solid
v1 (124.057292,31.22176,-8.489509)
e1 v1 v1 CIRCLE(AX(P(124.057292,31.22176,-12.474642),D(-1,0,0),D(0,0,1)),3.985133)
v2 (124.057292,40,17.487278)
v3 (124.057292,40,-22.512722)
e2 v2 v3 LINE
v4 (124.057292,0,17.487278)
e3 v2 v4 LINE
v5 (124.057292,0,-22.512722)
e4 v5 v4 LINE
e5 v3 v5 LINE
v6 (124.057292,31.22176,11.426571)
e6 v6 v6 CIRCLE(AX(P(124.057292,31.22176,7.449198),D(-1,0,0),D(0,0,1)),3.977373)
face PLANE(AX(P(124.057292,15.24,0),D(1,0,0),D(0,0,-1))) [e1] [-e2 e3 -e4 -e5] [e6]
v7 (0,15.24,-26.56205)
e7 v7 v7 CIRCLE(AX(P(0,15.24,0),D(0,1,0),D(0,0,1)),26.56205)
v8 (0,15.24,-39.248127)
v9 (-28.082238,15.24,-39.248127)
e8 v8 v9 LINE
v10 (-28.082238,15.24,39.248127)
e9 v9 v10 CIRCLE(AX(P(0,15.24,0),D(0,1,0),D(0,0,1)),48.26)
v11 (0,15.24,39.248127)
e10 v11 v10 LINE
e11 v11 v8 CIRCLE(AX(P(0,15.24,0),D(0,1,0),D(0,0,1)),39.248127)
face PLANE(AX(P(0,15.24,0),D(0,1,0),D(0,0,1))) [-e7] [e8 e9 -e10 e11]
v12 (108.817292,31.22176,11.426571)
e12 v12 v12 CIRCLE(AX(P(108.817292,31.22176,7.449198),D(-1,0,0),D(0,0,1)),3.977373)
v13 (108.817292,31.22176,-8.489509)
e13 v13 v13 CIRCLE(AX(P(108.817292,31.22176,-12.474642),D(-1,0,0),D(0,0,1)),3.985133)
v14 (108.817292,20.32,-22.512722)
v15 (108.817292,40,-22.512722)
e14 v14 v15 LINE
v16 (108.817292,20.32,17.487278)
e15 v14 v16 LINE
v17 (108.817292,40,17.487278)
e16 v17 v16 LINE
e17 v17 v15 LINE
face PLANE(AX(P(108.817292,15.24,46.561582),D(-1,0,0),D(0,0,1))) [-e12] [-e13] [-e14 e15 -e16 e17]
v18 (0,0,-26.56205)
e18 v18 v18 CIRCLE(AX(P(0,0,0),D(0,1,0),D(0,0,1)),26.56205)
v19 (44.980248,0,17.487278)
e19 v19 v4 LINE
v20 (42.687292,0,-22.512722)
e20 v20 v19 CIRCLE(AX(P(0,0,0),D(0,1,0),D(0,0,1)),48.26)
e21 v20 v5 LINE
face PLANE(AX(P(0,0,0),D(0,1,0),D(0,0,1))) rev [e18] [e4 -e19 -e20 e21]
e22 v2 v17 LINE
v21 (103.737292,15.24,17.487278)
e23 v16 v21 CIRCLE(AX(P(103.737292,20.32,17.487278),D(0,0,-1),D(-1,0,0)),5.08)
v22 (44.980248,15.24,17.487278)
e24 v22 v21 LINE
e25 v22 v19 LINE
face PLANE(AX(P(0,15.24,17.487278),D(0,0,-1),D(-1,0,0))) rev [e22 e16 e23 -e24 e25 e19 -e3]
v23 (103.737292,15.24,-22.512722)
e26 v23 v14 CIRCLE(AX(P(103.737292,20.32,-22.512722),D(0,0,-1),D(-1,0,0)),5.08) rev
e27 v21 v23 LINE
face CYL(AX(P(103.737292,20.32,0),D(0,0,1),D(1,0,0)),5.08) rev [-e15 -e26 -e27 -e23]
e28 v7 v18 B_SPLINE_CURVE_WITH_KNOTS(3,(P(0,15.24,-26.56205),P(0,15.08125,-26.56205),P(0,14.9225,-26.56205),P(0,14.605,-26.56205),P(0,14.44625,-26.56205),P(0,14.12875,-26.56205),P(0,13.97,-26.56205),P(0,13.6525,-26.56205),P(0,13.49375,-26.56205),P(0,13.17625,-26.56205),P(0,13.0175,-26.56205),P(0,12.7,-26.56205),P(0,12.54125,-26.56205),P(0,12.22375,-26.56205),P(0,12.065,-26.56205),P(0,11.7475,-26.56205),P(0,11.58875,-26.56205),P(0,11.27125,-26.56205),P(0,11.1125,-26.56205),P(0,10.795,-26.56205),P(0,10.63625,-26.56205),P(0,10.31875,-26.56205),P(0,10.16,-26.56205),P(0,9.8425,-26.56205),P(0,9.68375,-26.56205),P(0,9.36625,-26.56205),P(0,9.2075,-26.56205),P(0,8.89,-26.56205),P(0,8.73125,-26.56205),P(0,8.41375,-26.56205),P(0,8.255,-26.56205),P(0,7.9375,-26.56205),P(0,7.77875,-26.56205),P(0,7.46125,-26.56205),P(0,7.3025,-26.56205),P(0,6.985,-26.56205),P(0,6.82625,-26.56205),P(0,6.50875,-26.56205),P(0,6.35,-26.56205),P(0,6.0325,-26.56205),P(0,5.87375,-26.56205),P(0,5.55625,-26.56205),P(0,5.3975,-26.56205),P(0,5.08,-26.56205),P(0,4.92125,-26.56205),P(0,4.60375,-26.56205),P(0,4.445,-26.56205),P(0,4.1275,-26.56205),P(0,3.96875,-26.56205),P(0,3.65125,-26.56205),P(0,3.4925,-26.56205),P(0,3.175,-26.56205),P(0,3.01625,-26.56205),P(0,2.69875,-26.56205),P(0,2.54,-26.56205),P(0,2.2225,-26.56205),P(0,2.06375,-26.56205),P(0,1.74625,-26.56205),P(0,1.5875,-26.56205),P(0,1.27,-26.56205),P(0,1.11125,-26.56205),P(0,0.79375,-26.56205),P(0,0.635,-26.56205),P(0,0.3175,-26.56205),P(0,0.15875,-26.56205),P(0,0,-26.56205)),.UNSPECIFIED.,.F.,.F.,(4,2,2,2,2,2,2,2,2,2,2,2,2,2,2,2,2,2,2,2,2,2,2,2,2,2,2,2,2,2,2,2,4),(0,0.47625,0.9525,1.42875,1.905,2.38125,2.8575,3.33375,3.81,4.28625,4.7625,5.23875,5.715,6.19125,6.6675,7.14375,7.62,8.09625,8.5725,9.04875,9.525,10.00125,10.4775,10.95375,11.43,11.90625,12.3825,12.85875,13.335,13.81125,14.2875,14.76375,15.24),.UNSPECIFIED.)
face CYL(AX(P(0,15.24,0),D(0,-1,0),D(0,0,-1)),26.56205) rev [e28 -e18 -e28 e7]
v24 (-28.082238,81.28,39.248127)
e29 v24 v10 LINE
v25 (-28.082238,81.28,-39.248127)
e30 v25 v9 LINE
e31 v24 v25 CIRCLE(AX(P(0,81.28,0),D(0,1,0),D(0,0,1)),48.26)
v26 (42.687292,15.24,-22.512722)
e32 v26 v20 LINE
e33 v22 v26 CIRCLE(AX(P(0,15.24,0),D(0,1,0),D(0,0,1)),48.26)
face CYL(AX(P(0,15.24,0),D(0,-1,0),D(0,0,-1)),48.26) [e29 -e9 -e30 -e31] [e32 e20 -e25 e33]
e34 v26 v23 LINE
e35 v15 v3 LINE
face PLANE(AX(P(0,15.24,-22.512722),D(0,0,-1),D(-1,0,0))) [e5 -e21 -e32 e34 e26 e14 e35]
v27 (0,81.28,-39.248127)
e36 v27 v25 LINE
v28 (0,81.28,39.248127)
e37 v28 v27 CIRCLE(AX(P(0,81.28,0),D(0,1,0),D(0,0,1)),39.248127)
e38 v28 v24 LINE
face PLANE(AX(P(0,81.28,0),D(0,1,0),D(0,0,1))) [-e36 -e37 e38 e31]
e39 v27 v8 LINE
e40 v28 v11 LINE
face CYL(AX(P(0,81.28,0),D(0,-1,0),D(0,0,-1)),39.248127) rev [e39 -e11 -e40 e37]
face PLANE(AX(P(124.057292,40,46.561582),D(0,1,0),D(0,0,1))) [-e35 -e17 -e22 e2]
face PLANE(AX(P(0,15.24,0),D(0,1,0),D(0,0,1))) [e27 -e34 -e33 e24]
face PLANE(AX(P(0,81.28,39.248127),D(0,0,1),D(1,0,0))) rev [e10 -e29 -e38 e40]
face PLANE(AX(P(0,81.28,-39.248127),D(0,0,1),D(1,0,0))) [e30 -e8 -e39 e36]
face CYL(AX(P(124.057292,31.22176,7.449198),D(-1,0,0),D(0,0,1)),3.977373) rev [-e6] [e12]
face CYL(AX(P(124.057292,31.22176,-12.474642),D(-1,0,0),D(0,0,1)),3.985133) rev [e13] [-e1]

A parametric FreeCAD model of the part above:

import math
import FreeCAD as App
import Part
import Sketcher
Q = App.Units.Quantity


def edges_at(feature, points):
    """Names of the edges that pass closest to the given points."""
    edges = feature.Shape.Edges
    near = lambda p: min(range(len(edges)), key=lambda i: edges[i].distToShape(Part.Vertex(*p))[0])
    return sorted({f"Edge{near(p) + 1}" for p in points})


def add_polygon(sketch, points):
    """Adds a closed chain of lines whose ends are joined by coincident constraints."""
    first, n = sketch.GeometryCount, len(points)
    for a, b in zip(points, points[1:] + points[:1]):
        sketch.addGeometry(Part.LineSegment(App.Vector(*a, 0), App.Vector(*b, 0)), False)
    for i in range(n):
        sketch.addConstraint(Sketcher.Constraint("Coincident", first + i, 2, first + (i + 1) % n, 1))

doc = App.newDocument("Part")
body = doc.addObject("PartDesign::Body", "Body")

# Sketch on XZ plane
sketch1 = doc.addObject("Sketcher::SketchObject", "Sketch")
body.addObject(sketch1)
sketch1.AttachmentSupport = (doc.XZ_Plane, [""])
sketch1.MapMode = "FlatFace"
sketch1.addGeometry(Part.LineSegment(App.Vector(124, -23, 0), App.Vector(43, -23, 0)), False)
sketch1.addGeometry(Part.ArcOfCircle(Part.Circle(App.Vector(0, 0, 0), App.Vector(0, 0, 1), 48), math.radians(21), math.radians(332)), False)
sketch1.addGeometry(Part.LineSegment(App.Vector(45, 17, 0), App.Vector(124, 17, 0)), False)
sketch1.addGeometry(Part.LineSegment(App.Vector(124, 17, 0), App.Vector(124, -23, 0)), False)
sketch1.addGeometry(Part.Circle(App.Vector(0, 0, 0), App.Vector(0, 0, 1), 27), False)
sketch1.addConstraint(Sketcher.Constraint("Coincident", 0, 2, 1, 2))
sketch1.addConstraint(Sketcher.Constraint("Coincident", 1, 1, 2, 1))
sketch1.addConstraint(Sketcher.Constraint("Coincident", 2, 2, 3, 1))
sketch1.addConstraint(Sketcher.Constraint("Coincident", 3, 2, 0, 1))
sketch1.addConstraint(Sketcher.Constraint("Horizontal", 0))
sketch1.addConstraint(Sketcher.Constraint("Horizontal", 2))
sketch1.addConstraint(Sketcher.Constraint("Vertical", 3))
sketch1.addConstraint(Sketcher.Constraint("Coincident", 1, 3, -1, 1))
sketch1.addConstraint(Sketcher.Constraint("Coincident", 4, 3, -1, 1))
sketch1.addConstraint(Sketcher.Constraint("Radius", 1, Q("1.9 in")))
sketch1.addConstraint(Sketcher.Constraint("Diameter", 4, Q("2.0915 in")))
sketch1.addConstraint(Sketcher.Constraint("DistanceX", 0, 2, 0, 1, 81.37))
sketch1.addConstraint(Sketcher.Constraint("DistanceY", 3, 2, 3, 1, 40.0))
sketch1.addConstraint(Sketcher.Constraint("DistanceX", 2, 1, 2, 2, 79.077044))
pad1 = doc.addObject("PartDesign::Pad", "Pad")
body.addObject(pad1)
pad1.Profile = sketch1
pad1.Length = Q("0.6 in")
pad1.Reversed = True

# Sketch on XY plane
sketch2 = doc.addObject("Sketcher::SketchObject", "Sketch001")
body.addObject(sketch2)
sketch2.AttachmentSupport = (doc.XY_Plane, [""])
sketch2.MapMode = "FlatFace"
sketch2.AttachmentOffset = App.Placement(App.Vector(0, 0, -22.512722), App.Rotation())
add_polygon(sketch2, [(124, 40), (124, 15), (109, 15), (109, 40)])  # lines 0-3
sketch2.addConstraint(Sketcher.Constraint("Vertical", 0))
sketch2.addConstraint(Sketcher.Constraint("Horizontal", 1))
sketch2.addConstraint(Sketcher.Constraint("Vertical", 2))
sketch2.addConstraint(Sketcher.Constraint("Horizontal", 3))
sketch2.addConstraint(Sketcher.Constraint("DistanceX", 1, 2, 1, 1, Q("0.6 in")))
sketch2.addConstraint(Sketcher.Constraint("DistanceY", -1, 1, 0, 2, Q("0.6 in")))
sketch2.addConstraint(Sketcher.Constraint("DistanceY", 0, 2, 0, 1, 24.76))
sketch2.addConstraint(Sketcher.Constraint("DistanceX", -1, 1, 0, 2, 124.057292))
pad2 = doc.addObject("PartDesign::Pad", "Pad001")
body.addObject(pad2)
pad2.Profile = sketch2
pad2.Length = 40

# Sketch on YZ plane
sketch3 = doc.addObject("Sketcher::SketchObject", "Sketch002")
body.addObject(sketch3)
sketch3.AttachmentSupport = (doc.YZ_Plane, [""])
sketch3.MapMode = "FlatFace"
sketch3.AttachmentOffset = App.Placement(App.Vector(0, 0, 108.817292), App.Rotation())
sketch3.addGeometry(Part.Circle(App.Vector(31.2, 7.4, 0), App.Vector(0, 0, 1), 4), False)
sketch3.addGeometry(Part.Circle(App.Vector(31.2, -12.5, 0), App.Vector(0, 0, 1), 4), False)
sketch3.addConstraint(Sketcher.Constraint("Vertical", 0, 3, 1, 3))
sketch3.addConstraint(Sketcher.Constraint("Diameter", 0, 7.954747))
sketch3.addConstraint(Sketcher.Constraint("Diameter", 1, 7.970266))
sketch3.addConstraint(Sketcher.Constraint("DistanceX", -1, 1, 0, 3, 31.22176))
sketch3.addConstraint(Sketcher.Constraint("DistanceY", 1, 3, 0, 3, 19.92384))
sketch3.addConstraint(Sketcher.Constraint("DistanceY", -1, 1, 0, 3, 7.449198))
pocket1 = doc.addObject("PartDesign::Pocket", "Pocket")
body.addObject(pocket1)
pocket1.Profile = sketch3
pocket1.Type = "ThroughAll"
pocket1.Reversed = True
doc.recompute()

fillet = doc.addObject("PartDesign::Fillet", "Fillet")
body.addObject(fillet)
fillet.Base = (pocket1, edges_at(pocket1, [(108.817, 15.24, -2.513)]))
fillet.Radius = Q("0.2 in")

# Sketch on XZ plane
sketch4 = doc.addObject("Sketcher::SketchObject", "Sketch003")
body.addObject(sketch4)
sketch4.AttachmentSupport = (doc.XZ_Plane, [""])
sketch4.MapMode = "FlatFace"
sketch4.AttachmentOffset = App.Placement(App.Vector(0, 0, -0.6 * 25.4), App.Rotation())
sketch4.addGeometry(Part.ArcOfCircle(Part.Circle(App.Vector(0, 0, 0), App.Vector(0, 0, 1), 39), math.radians(-90), math.radians(90)), False)
sketch4.addGeometry(Part.LineSegment(App.Vector(0, 39, 0), App.Vector(-28, 39, 0)), False)
sketch4.addGeometry(Part.ArcOfCircle(Part.Circle(App.Vector(0, 0, 0), App.Vector(0, 0, 1), 48), math.radians(0), math.radians(126)), False)
sketch4.addGeometry(Part.ArcOfCircle(Part.Circle(App.Vector(0, 0, 0), App.Vector(0, 0, 1), 48), math.radians(-126), math.radians(0)), False)
sketch4.addGeometry(Part.LineSegment(App.Vector(-28, -39, 0), App.Vector(0, -39, 0)), False)
sketch4.addConstraint(Sketcher.Constraint("Tangent", 0, 2, 1, 1))
sketch4.addConstraint(Sketcher.Constraint("Coincident", 1, 2, 2, 2))
sketch4.addConstraint(Sketcher.Constraint("Tangent", 2, 1, 3, 2))
sketch4.addConstraint(Sketcher.Constraint("Coincident", 3, 1, 4, 1))
sketch4.addConstraint(Sketcher.Constraint("Tangent", 4, 2, 0, 1))
sketch4.addConstraint(Sketcher.Constraint("Horizontal", 1))
sketch4.addConstraint(Sketcher.Constraint("Horizontal", 4))
sketch4.addConstraint(Sketcher.Constraint("Coincident", 0, 3, -1, 1))
sketch4.addConstraint(Sketcher.Constraint("Coincident", 2, 3, -1, 1))
sketch4.addConstraint(Sketcher.Constraint("Equal", 2, 3))
sketch4.addConstraint(Sketcher.Constraint("PointOnObject", 2, 1, -1))
sketch4.addConstraint(Sketcher.Constraint("Radius", 2, Q("1.9 in")))
sketch4.addConstraint(Sketcher.Constraint("DistanceX", 1, 2, 1, 1, Q("1.1055999 in")))
pad3 = doc.addObject("PartDesign::Pad", "Pad002")
body.addObject(pad3)
pad3.Profile = sketch4
pad3.Length = Q("2.6 in")
pad3.Reversed = True

doc.recompute()
